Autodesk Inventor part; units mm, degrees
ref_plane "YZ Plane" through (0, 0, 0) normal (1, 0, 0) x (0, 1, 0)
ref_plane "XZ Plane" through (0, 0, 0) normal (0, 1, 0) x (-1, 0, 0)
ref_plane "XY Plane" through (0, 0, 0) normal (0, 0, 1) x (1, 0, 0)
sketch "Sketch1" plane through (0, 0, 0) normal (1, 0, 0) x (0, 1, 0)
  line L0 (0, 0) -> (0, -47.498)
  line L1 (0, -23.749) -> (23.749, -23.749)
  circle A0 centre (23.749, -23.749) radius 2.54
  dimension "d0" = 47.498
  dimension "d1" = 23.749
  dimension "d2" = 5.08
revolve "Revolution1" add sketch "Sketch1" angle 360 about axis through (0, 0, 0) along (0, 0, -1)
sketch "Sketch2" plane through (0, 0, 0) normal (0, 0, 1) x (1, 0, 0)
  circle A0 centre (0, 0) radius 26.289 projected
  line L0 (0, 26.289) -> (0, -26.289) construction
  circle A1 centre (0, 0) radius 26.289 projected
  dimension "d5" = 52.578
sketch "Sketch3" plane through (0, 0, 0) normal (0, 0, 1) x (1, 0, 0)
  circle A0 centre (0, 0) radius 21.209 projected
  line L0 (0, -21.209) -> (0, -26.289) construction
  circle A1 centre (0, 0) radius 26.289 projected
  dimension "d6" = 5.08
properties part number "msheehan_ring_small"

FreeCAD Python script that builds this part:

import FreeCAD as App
import Part
import Sketcher
from FreeCAD import Vector
Q = App.Units.Quantity

doc = App.newDocument("Part")
body = doc.addObject("PartDesign::Body", "Body")

# Sketch on YZ plane
sketch1 = body.newObject("Sketcher::SketchObject", "Sketch")
sketch1.AttachmentSupport = (doc.getObject("YZ_Plane"), [""])
sketch1.MapMode = "FlatFace"
sketch1.addGeometry(Part.Circle(Vector(23.749, -23.749, 0), Vector(0, 0, 1), 2.54), False)
sketch1.addConstraint([
    Sketcher.Constraint("Diameter", 0, Q("0.2 in")),
    Sketcher.Constraint("DistanceX", -1, 1, 0, 3, Q("0.935 in")),
    Sketcher.Constraint("DistanceY", 0, 3, -1, 1, Q("0.935 in")),
])
revolution = body.newObject("PartDesign::Revolution", "Revolution")
revolution.Profile = sketch1
revolution.ReferenceAxis = (sketch1, ["V_Axis"])
revolution.Angle = 360

doc.recompute()
